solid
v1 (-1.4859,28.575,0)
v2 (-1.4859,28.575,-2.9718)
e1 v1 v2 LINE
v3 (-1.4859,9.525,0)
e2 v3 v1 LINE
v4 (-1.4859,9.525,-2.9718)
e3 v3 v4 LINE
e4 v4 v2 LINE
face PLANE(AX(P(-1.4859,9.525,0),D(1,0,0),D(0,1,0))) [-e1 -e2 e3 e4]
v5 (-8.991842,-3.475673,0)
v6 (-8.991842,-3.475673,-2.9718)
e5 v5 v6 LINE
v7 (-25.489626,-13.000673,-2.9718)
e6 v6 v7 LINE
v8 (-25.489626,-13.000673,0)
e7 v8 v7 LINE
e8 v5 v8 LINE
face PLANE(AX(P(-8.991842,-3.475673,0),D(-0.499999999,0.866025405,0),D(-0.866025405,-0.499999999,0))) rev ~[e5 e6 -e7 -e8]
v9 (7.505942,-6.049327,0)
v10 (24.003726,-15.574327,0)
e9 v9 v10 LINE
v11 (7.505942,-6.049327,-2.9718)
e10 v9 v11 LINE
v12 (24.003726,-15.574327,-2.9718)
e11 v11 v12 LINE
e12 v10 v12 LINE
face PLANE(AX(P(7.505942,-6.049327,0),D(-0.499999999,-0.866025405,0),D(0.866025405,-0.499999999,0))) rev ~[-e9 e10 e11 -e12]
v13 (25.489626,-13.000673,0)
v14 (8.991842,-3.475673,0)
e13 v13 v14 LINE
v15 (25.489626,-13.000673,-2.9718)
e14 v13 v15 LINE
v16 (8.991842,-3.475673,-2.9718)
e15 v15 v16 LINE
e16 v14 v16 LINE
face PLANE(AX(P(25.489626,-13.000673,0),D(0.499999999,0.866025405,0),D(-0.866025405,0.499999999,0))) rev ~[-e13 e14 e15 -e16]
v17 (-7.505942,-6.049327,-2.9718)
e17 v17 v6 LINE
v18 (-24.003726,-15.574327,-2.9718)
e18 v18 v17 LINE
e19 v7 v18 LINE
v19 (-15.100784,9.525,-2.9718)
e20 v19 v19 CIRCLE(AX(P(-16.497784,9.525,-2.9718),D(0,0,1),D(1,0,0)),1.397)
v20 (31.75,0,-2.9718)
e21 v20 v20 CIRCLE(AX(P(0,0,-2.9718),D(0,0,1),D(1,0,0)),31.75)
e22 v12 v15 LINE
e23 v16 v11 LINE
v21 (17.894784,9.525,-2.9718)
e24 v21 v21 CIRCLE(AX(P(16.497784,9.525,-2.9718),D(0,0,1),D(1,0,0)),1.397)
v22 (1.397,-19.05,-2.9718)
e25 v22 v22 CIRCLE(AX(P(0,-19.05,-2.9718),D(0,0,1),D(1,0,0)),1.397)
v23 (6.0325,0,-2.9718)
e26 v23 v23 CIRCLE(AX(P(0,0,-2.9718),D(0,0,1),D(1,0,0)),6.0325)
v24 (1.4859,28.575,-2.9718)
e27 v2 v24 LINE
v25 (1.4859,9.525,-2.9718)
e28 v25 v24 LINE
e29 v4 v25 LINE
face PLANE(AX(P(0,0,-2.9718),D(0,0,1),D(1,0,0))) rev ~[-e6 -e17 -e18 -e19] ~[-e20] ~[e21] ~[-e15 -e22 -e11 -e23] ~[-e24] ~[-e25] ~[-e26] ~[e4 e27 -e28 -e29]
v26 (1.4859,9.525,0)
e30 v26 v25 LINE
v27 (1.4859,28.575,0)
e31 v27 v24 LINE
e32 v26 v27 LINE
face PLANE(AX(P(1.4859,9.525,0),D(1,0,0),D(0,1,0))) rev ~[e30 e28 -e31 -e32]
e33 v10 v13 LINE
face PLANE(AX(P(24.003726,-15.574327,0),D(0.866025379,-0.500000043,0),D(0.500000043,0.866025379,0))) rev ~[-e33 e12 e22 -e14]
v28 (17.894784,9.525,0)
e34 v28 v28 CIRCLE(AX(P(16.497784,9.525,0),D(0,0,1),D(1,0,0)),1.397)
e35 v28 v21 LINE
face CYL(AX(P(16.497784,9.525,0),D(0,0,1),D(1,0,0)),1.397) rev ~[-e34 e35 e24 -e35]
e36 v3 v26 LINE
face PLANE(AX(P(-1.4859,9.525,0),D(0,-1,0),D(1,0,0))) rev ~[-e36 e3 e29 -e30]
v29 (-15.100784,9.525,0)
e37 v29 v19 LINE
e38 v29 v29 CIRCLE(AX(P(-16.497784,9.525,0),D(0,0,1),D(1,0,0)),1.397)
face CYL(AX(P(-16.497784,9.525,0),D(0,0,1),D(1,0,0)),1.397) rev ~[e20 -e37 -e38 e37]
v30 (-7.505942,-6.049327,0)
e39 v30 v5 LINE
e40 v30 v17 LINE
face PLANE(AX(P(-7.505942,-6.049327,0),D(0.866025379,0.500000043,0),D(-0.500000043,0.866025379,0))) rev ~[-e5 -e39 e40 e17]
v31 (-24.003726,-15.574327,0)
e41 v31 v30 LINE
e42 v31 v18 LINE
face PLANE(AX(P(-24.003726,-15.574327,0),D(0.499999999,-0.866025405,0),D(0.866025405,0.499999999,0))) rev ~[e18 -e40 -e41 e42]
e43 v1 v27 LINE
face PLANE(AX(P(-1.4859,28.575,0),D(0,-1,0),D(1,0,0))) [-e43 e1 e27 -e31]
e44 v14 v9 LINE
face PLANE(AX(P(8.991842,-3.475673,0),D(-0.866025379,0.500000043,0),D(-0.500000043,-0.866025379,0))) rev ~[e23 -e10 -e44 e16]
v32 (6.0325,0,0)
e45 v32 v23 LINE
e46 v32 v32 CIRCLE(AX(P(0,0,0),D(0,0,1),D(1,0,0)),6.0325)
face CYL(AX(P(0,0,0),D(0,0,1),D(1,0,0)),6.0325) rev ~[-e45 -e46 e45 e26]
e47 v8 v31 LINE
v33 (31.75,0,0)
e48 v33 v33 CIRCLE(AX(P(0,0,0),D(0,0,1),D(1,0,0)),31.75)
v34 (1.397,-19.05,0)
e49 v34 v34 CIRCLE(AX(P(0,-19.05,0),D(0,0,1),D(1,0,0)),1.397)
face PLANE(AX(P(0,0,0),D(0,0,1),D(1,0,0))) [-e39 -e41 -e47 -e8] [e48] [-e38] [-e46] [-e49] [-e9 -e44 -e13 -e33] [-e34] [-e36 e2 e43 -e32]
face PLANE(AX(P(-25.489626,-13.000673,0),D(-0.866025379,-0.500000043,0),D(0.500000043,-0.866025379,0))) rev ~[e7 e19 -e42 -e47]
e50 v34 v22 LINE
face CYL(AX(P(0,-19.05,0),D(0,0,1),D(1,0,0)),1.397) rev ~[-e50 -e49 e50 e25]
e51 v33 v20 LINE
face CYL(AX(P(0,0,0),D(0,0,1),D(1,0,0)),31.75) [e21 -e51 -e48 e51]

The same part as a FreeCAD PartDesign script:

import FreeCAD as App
import Part
import Sketcher
from FreeCAD import Vector
Q = App.Units.Quantity


def add_polygon(sketch, points):
    """Adds a closed chain of lines whose ends are joined by coincident constraints."""
    first, n = sketch.GeometryCount, len(points)
    for a, b in zip(points, points[1:] + points[:1]):
        sketch.addGeometry(Part.LineSegment(App.Vector(*a, 0), App.Vector(*b, 0)), False)
    for i in range(n):
        sketch.addConstraint(Sketcher.Constraint("Coincident", first + i, 2, first + (i + 1) % n, 1))

doc = App.newDocument("Part")
body = doc.addObject("PartDesign::Body", "Body")

# Sketch on XY plane
sketch1 = body.newObject("Sketcher::SketchObject", "Sketch")
sketch1.AttachmentSupport = (doc.getObject("XY_Plane"), [""])
sketch1.MapMode = "FlatFace"
sketch1.addGeometry(Part.Circle(Vector(0, 0, 0), Vector(0, 0, 1), 32), False)
sketch1.addConstraint([
    Sketcher.Constraint("Coincident", 0, 3, -1, 1),
    Sketcher.Constraint("Diameter", 0, Q("2.5 in")),
])
pad1 = body.newObject("PartDesign::Pad", "Pad")
pad1.Profile = sketch1
pad1.Length = Q("0.117 in")
pad1.Reversed = True

# Sketch on XY plane
sketch2 = body.newObject("Sketcher::SketchObject", "Sketch001")
sketch2.AttachmentSupport = (doc.getObject("XY_Plane"), [""])
sketch2.MapMode = "FlatFace"
sketch2.addGeometry(Part.Circle(Vector(0, 0, 0), Vector(0, 0, 1), 6), False)  # 0
add_polygon(sketch2, [(-1.5, 28.6), (-1.5, 9.5), (1.5, 9.5), (1.5, 28.6)])  # lines 1-4
add_polygon(sketch2, [(-7.5, -6), (-9, -3.5), (-25.5, -13), (-24, -15.6)])  # lines 5-8
add_polygon(sketch2, [(9, -3.5), (7.5, -6), (24, -15.6), (25.5, -13)])  # lines 9-12
sketch2.addGeometry(Part.Circle(Vector(-16.5, 9.5, 0), Vector(0, 0, 1), 1.4), False)  # 13
sketch2.addGeometry(Part.Circle(Vector(16.5, 9.5, 0), Vector(0, 0, 1), 1.4), False)  # 14
sketch2.addGeometry(Part.Circle(Vector(0, -19.1, 0), Vector(0, 0, 1), 1.4), False)  # 15
sketch2.addConstraint([
    Sketcher.Constraint("Vertical", 1),
    Sketcher.Constraint("Horizontal", 2),
    Sketcher.Constraint("Vertical", 3),
    Sketcher.Constraint("Horizontal", 4),
    Sketcher.Constraint("Coincident", 0, 3, -1, 1),
    Sketcher.Constraint("Equal", 13, 14),
    Sketcher.Constraint("Equal", 14, 15),
    Sketcher.Constraint("Symmetric", 13, 3, 14, 3, -2),
    Sketcher.Constraint("Symmetric", 8, 2, 9, 2, -2),
    Sketcher.Constraint("Symmetric", 7, 2, 10, 2, -2),
    Sketcher.Constraint("Symmetric", 6, 2, 11, 2, -2),
    Sketcher.Constraint("Symmetric", 5, 2, 12, 2, -2),
    Sketcher.Constraint("PointOnObject", 15, 3, -2),
    Sketcher.Constraint("Perpendicular", 5, 6),
    Sketcher.Constraint("Perpendicular", 6, 7),
    Sketcher.Constraint("Perpendicular", 7, 8),
    Sketcher.Constraint("Horizontal", 14, 3, 1, 2),
    Sketcher.Constraint("Diameter", 13, Q("0.11 in")),
    Sketcher.Constraint("Diameter", 0, Q("0.475 in")),
    Sketcher.Constraint("Angle", 5, Q("120.000003 deg")),
    Sketcher.Constraint("DistanceY", 1, 2, 1, 1, Q("0.75 in")),
    Sketcher.Constraint("Distance", 6, Q("0.75 in")),
    Sketcher.Constraint("DistanceX", 2, 1, 2, 2, Q("0.117 in")),
    Sketcher.Constraint("DistanceY", 15, 3, -1, 1, Q("0.75 in")),
    Sketcher.Constraint("Distance", 5, Q("0.117 in")),
    Sketcher.Constraint("DistanceY", -1, 1, 13, 3, Q("0.375 in")),
    Sketcher.Constraint("DistanceX", 1, 2, -1, 1, Q("0.0585 in")),
    Sketcher.Constraint("DistanceX", 13, 3, 5, 2, Q("7.505942 mm")),
    Sketcher.Constraint("DistanceX", 5, 2, 2, 2, Q("10.477742 mm")),
    Sketcher.Constraint("DistanceY", 5, 2, -1, 1, Q("3.475673 mm")),
])
pocket1 = body.newObject("PartDesign::Pocket", "Pocket")
pocket1.Profile = sketch2
pocket1.Type = "ThroughAll"

doc.recompute()
